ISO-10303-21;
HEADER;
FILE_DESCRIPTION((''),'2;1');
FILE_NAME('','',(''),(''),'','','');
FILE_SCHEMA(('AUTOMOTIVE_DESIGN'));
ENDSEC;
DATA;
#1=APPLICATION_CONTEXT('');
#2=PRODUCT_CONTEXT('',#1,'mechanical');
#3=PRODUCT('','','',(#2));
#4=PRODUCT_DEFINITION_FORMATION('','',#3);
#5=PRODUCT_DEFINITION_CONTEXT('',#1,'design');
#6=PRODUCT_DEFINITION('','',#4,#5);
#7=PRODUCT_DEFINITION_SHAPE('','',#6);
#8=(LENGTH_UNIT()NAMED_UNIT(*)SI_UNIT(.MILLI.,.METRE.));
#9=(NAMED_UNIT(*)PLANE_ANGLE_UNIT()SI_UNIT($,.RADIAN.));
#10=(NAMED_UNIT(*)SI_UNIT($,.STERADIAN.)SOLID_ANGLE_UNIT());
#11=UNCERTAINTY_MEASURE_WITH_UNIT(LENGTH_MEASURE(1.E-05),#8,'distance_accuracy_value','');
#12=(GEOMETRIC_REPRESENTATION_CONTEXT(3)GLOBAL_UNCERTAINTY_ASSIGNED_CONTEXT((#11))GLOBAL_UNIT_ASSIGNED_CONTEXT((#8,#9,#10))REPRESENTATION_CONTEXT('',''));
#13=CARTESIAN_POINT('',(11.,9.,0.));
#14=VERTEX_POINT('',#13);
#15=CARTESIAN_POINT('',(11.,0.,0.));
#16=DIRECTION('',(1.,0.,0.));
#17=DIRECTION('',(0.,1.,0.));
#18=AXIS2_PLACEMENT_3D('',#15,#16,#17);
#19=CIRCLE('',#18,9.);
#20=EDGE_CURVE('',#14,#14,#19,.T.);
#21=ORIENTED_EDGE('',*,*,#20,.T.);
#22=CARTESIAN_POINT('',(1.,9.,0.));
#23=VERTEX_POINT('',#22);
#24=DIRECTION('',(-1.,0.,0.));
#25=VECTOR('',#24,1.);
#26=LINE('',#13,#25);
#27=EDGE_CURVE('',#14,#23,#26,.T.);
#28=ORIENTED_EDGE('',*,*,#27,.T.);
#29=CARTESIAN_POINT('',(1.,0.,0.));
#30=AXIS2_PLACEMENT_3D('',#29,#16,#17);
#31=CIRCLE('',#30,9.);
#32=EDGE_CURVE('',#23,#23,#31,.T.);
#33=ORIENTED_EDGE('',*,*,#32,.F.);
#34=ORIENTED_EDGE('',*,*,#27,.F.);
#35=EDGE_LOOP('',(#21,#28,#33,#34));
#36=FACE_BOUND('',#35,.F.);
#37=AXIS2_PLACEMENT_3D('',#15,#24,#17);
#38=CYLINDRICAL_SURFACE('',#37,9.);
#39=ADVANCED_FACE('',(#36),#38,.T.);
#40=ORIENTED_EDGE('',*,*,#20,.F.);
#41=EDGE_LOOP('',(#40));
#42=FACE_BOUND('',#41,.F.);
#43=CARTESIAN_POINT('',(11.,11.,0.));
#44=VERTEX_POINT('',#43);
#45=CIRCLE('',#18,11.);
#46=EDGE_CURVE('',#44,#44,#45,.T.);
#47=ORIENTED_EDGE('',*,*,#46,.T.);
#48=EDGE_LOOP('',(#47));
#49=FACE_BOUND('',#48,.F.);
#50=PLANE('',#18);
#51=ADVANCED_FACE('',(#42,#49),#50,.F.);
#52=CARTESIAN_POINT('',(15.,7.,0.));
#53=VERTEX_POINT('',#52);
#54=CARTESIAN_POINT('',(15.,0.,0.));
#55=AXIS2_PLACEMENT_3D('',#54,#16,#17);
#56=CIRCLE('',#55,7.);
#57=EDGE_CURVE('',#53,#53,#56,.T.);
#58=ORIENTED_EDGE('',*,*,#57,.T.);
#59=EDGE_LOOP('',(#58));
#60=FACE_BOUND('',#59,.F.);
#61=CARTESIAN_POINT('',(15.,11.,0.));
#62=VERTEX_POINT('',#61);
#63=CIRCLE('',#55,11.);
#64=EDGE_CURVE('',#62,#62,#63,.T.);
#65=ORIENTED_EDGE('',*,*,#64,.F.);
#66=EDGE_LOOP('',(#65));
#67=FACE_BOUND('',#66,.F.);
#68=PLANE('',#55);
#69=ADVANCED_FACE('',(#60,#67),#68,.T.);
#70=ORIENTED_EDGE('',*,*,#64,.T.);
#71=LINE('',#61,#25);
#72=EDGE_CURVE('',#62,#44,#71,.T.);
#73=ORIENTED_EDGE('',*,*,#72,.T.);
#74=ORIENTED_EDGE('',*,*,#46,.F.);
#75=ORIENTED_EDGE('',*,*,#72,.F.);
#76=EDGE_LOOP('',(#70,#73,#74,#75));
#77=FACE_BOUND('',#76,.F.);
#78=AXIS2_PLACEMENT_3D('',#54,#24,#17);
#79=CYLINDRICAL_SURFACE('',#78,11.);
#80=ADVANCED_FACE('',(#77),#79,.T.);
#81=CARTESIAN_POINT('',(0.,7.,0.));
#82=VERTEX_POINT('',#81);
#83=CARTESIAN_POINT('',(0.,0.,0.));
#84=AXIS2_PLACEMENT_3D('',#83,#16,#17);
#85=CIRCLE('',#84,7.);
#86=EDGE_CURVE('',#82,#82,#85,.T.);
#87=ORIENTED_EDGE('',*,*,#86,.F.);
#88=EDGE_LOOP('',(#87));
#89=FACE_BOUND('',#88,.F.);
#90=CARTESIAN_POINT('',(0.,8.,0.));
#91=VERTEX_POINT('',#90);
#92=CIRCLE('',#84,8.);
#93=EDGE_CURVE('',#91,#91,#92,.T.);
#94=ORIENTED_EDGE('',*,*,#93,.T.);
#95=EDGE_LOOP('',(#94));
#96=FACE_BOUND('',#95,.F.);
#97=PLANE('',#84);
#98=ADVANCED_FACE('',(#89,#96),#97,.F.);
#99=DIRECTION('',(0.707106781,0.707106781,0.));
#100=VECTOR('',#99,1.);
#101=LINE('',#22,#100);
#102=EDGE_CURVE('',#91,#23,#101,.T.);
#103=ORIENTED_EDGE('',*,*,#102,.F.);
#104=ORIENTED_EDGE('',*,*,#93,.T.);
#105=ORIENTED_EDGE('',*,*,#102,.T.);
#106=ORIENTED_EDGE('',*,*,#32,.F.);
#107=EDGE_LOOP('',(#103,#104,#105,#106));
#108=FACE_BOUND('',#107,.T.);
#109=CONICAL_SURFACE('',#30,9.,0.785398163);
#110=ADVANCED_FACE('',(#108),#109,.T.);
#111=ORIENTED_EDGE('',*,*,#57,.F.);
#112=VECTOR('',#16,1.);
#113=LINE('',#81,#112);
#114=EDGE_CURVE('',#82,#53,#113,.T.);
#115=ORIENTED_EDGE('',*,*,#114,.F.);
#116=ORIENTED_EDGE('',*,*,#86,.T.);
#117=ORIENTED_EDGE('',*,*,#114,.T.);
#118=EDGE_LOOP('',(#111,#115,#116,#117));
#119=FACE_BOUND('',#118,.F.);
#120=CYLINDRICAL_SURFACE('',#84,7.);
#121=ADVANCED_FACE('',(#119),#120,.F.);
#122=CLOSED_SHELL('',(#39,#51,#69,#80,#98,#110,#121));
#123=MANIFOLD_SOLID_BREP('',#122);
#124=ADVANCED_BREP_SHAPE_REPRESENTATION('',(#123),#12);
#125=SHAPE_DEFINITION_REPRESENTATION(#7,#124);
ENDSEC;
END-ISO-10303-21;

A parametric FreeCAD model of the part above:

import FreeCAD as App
import Part
import Sketcher
from FreeCAD import Vector


def edges_at(feature, points):
    """Names of the edges that pass closest to the given points."""
    edges = feature.Shape.Edges
    near = lambda p: min(range(len(edges)), key=lambda i: edges[i].distToShape(Part.Vertex(*p))[0])
    return sorted({f"Edge{near(p) + 1}" for p in points})


def add_polygon(sketch, points):
    """Adds a closed chain of lines whose ends are joined by coincident constraints."""
    first, n = sketch.GeometryCount, len(points)
    for a, b in zip(points, points[1:] + points[:1]):
        sketch.addGeometry(Part.LineSegment(App.Vector(*a, 0), App.Vector(*b, 0)), False)
    for i in range(n):
        sketch.addConstraint(Sketcher.Constraint("Coincident", first + i, 2, first + (i + 1) % n, 1))

doc = App.newDocument("Part")
body = doc.addObject("PartDesign::Body", "Body")

sketch1 = body.newObject("Sketcher::SketchObject", "Sketch")
sketch1.AttachmentSupport = (doc.getObject("XY_Plane"), [""])
sketch1.MapMode = "FlatFace"
add_polygon(sketch1, [(0, 9), (0, 7), (15, 7), (15, 11), (11, 11), (11, 9)])
sketch1.addConstraint([
    Sketcher.Constraint("Vertical", 0),
    Sketcher.Constraint("Horizontal", 1),
    Sketcher.Constraint("Vertical", 2),
    Sketcher.Constraint("Horizontal", 3),
    Sketcher.Constraint("Vertical", 4),
    Sketcher.Constraint("Horizontal", 5),
    Sketcher.Constraint("PointOnObject", 0, 2, -2),
    Sketcher.Constraint("Equal", 3, 2),
    Sketcher.Constraint("Equal", 0, 4),
    Sketcher.Constraint("DistanceX", 1, 1, 1, 2, 15.0),
    Sketcher.Constraint("DistanceX", 3, 2, 3, 1, 4.0),
    Sketcher.Constraint("DistanceY", -1, 1, 0, 2, 7.0),
])
revolution = body.newObject("PartDesign::Revolution", "Revolution")
revolution.Profile = sketch1
revolution.ReferenceAxis = (sketch1, ["H_Axis"])
revolution.Angle = 360
doc.recompute()

chamfer = body.newObject("PartDesign::Chamfer", "Chamfer")
chamfer.Base = (revolution, edges_at(revolution, [(0, -9, 0)]))
chamfer.Size = 1

doc.recompute()
